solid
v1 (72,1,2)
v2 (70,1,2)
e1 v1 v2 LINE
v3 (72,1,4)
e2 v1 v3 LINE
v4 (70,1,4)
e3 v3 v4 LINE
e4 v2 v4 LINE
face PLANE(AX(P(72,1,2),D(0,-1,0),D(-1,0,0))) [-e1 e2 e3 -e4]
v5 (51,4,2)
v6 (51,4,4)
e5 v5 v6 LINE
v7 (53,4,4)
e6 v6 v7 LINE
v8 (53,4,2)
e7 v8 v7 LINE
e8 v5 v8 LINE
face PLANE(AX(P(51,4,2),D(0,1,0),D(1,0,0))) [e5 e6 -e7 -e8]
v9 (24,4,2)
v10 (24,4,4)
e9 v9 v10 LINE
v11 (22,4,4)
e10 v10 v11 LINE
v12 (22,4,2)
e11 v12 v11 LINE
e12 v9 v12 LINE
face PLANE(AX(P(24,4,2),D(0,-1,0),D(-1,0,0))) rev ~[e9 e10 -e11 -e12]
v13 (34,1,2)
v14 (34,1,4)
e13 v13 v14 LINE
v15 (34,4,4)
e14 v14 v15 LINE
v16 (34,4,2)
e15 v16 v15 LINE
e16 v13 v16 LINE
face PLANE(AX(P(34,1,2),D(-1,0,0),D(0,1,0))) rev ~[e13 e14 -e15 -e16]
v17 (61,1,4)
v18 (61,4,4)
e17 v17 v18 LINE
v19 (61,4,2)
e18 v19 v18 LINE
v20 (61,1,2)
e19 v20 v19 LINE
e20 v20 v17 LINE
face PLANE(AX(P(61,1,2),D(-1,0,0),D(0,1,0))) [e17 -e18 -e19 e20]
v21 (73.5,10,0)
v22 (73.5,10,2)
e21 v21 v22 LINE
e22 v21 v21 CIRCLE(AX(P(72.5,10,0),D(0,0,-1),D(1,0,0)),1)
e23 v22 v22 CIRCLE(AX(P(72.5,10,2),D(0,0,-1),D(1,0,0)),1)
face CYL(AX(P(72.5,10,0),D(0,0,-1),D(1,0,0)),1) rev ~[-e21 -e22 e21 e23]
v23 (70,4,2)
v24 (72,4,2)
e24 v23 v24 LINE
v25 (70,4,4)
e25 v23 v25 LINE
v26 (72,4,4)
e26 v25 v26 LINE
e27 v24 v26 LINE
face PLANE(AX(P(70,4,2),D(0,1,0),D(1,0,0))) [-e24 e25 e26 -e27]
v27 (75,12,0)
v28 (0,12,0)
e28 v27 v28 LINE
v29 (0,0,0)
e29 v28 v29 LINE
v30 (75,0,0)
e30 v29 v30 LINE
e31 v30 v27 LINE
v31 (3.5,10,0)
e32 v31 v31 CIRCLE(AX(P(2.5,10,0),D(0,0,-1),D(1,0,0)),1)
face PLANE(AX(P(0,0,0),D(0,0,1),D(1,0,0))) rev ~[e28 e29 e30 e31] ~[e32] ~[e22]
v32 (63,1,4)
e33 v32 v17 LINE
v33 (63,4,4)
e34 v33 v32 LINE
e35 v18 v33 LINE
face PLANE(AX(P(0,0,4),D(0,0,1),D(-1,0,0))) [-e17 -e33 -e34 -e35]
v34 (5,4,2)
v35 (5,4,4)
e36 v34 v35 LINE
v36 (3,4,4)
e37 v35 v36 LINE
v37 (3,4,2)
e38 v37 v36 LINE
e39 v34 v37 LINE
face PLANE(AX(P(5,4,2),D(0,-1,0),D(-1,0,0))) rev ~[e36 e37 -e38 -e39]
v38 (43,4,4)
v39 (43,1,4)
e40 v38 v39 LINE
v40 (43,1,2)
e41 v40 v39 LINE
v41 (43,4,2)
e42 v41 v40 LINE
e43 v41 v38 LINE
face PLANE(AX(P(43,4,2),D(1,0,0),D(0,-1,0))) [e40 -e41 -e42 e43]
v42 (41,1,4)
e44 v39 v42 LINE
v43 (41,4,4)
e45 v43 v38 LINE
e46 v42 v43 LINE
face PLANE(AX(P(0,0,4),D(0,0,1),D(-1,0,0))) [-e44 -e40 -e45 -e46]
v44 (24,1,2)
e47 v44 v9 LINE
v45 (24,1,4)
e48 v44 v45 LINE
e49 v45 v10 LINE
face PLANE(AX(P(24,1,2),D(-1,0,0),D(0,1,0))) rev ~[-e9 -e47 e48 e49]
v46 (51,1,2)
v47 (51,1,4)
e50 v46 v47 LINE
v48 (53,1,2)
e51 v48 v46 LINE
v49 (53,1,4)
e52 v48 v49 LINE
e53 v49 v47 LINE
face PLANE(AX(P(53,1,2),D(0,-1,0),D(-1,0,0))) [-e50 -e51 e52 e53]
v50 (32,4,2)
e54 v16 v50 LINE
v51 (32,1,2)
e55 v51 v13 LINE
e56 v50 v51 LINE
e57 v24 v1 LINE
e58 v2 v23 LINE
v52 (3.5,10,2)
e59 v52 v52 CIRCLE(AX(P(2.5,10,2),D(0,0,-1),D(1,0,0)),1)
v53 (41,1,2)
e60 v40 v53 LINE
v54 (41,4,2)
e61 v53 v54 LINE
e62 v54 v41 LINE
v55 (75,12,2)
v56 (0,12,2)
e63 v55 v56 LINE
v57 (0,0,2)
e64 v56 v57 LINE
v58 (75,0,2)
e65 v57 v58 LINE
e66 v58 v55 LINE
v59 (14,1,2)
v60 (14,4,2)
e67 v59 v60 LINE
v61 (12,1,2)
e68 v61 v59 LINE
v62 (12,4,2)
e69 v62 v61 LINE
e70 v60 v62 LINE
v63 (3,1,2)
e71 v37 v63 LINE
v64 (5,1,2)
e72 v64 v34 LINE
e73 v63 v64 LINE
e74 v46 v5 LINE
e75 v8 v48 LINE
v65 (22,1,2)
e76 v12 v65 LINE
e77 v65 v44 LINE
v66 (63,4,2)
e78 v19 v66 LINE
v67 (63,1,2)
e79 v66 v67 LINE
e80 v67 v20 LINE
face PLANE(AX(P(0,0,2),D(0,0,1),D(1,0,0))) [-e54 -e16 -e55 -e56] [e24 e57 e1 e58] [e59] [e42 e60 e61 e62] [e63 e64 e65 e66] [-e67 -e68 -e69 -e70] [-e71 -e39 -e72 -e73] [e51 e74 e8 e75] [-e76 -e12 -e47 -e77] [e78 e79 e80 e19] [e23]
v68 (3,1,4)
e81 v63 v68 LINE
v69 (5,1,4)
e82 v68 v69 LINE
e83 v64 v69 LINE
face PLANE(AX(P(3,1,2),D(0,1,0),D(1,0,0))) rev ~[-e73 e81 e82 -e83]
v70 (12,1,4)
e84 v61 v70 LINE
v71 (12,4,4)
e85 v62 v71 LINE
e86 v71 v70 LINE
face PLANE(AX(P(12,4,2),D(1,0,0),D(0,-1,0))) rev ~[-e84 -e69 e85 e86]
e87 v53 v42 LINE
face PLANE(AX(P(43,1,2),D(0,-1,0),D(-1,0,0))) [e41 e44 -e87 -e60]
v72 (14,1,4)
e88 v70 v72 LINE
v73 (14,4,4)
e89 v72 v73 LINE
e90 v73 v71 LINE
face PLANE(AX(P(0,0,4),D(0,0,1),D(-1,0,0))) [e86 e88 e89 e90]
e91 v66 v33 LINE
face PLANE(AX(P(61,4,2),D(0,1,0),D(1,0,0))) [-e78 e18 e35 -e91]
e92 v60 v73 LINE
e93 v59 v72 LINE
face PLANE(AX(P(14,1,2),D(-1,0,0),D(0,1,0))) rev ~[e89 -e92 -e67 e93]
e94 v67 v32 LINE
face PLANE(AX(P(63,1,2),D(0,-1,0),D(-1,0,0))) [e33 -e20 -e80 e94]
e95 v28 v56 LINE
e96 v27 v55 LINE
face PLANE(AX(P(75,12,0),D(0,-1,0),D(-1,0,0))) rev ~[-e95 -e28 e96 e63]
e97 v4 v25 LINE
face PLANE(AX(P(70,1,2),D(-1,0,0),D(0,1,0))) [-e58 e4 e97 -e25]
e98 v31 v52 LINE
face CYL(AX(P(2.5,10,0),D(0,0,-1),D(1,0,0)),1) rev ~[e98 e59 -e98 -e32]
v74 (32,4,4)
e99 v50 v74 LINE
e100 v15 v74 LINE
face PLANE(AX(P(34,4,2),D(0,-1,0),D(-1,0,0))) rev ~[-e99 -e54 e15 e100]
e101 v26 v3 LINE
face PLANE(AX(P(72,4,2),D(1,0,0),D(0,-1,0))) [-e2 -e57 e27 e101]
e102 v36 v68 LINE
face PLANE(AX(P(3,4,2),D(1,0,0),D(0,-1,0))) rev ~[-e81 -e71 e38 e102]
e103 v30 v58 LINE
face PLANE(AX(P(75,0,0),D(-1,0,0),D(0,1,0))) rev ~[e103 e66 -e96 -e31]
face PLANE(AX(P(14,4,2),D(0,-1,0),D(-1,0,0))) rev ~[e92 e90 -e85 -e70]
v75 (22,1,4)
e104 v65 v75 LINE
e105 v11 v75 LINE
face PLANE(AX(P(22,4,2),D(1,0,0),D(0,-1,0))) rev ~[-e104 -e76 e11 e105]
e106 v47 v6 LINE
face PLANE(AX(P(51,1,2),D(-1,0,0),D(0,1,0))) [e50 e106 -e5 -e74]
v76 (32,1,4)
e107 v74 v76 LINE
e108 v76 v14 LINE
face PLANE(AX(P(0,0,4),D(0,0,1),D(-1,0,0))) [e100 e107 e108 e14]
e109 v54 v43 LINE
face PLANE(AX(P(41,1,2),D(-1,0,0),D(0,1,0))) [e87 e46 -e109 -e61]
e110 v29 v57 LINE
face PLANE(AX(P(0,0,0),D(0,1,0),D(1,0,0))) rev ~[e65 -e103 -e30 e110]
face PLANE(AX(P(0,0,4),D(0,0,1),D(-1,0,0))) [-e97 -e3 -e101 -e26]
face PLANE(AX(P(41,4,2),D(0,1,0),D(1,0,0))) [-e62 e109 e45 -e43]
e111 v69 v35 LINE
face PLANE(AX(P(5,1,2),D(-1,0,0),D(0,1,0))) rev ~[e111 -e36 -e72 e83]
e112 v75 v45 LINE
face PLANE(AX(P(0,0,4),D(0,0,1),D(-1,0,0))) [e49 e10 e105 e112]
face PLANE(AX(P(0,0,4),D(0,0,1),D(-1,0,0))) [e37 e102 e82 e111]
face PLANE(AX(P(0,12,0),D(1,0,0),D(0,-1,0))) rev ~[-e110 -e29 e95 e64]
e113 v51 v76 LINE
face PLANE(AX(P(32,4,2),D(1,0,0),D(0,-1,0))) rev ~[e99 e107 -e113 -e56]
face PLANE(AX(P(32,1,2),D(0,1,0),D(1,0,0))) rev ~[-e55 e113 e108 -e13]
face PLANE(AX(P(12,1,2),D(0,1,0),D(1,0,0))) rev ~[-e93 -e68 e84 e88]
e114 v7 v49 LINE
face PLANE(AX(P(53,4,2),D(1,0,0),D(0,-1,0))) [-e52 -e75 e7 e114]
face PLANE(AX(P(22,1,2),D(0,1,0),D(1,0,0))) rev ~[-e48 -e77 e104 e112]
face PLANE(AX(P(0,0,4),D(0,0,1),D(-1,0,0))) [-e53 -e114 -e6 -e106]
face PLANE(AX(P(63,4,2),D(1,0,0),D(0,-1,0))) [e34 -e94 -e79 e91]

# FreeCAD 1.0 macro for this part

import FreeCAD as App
import Part
import Sketcher
from FreeCAD import Vector


def add_polygon(sketch, points):
    """Adds a closed chain of lines whose ends are joined by coincident constraints."""
    first, n = sketch.GeometryCount, len(points)
    for a, b in zip(points, points[1:] + points[:1]):
        sketch.addGeometry(Part.LineSegment(App.Vector(*a, 0), App.Vector(*b, 0)), False)
    for i in range(n):
        sketch.addConstraint(Sketcher.Constraint("Coincident", first + i, 2, first + (i + 1) % n, 1))

doc = App.newDocument("Part")
body = doc.addObject("PartDesign::Body", "Body")

# Sketch on XY plane
sketch1 = body.newObject("Sketcher::SketchObject", "Sketch")
sketch1.AttachmentSupport = (doc.getObject("XY_Plane"), [""])
sketch1.MapMode = "FlatFace"
add_polygon(sketch1, [(0, 12), (0, 0), (75, 0), (75, 12)])  # lines 0-3
sketch1.addConstraint([
    Sketcher.Constraint("Vertical", 0),
    Sketcher.Constraint("Horizontal", 1),
    Sketcher.Constraint("Vertical", 2),
    Sketcher.Constraint("Horizontal", 3),
    Sketcher.Constraint("Coincident", 0, 2, -1, 1),
    Sketcher.Constraint("DistanceX", 1, 1, 1, 2, 75.0),
    Sketcher.Constraint("DistanceY", 0, 2, 0, 1, 12.0),
])
pad1 = body.newObject("PartDesign::Pad", "Pad")
pad1.Profile = sketch1
pad1.Length = 2

# Sketch on XY plane
sketch2 = body.newObject("Sketcher::SketchObject", "Sketch001")
sketch2.AttachmentSupport = (doc.getObject("XY_Plane"), [""])
sketch2.MapMode = "FlatFace"
sketch2.AttachmentOffset = App.Placement(Vector(0, 0, 2), App.Rotation())
add_polygon(sketch2, [(3, 4), (3, 1), (5, 1), (5, 4)])  # lines 0-3
add_polygon(sketch2, [(70, 1), (72, 1), (72, 4), (70, 4)])  # lines 4-7
add_polygon(sketch2, [(12, 4), (12, 1), (14, 1), (14, 4)])  # lines 8-11
add_polygon(sketch2, [(61, 1), (63, 1), (63, 4), (61, 4)])  # lines 12-15
add_polygon(sketch2, [(22, 4), (22, 1), (24, 1), (24, 4)])  # lines 16-19
add_polygon(sketch2, [(51, 1), (53, 1), (53, 4), (51, 4)])  # lines 20-23
add_polygon(sketch2, [(32, 4), (32, 1), (34, 1), (34, 4)])  # lines 24-27
add_polygon(sketch2, [(41, 1), (43, 1), (43, 4), (41, 4)])  # lines 28-31
sketch2.addConstraint([
    Sketcher.Constraint("Vertical", 0),
    Sketcher.Constraint("Horizontal", 1),
    Sketcher.Constraint("Vertical", 2),
    Sketcher.Constraint("Horizontal", 3),
    Sketcher.Constraint("Horizontal", 4),
    Sketcher.Constraint("Vertical", 5),
    Sketcher.Constraint("Horizontal", 6),
    Sketcher.Constraint("Vertical", 7),
    Sketcher.Constraint("Vertical", 8),
    Sketcher.Constraint("Horizontal", 9),
    Sketcher.Constraint("Vertical", 10),
    Sketcher.Constraint("Horizontal", 11),
    Sketcher.Constraint("Horizontal", 12),
    Sketcher.Constraint("Vertical", 13),
    Sketcher.Constraint("Horizontal", 14),
    Sketcher.Constraint("Vertical", 15),
    Sketcher.Constraint("Vertical", 16),
    Sketcher.Constraint("Horizontal", 17),
    Sketcher.Constraint("Vertical", 18),
    Sketcher.Constraint("Horizontal", 19),
    Sketcher.Constraint("Horizontal", 20),
    Sketcher.Constraint("Vertical", 21),
    Sketcher.Constraint("Horizontal", 22),
    Sketcher.Constraint("Vertical", 23),
    Sketcher.Constraint("Vertical", 24),
    Sketcher.Constraint("Horizontal", 25),
    Sketcher.Constraint("Vertical", 26),
    Sketcher.Constraint("Horizontal", 27),
    Sketcher.Constraint("Horizontal", 28),
    Sketcher.Constraint("Vertical", 29),
    Sketcher.Constraint("Horizontal", 30),
    Sketcher.Constraint("Vertical", 31),
    Sketcher.Constraint("Horizontal", 1, 2, 4, 2),
    Sketcher.Constraint("Horizontal", 3, 2, 5, 2),
    Sketcher.Constraint("Horizontal", 7, 2, 8, 2),
    Sketcher.Constraint("Horizontal", 6, 2, 10, 2),
    Sketcher.Constraint("Horizontal", 9, 2, 12, 2),
    Sketcher.Constraint("Horizontal", 11, 2, 13, 2),
    Sketcher.Constraint("Horizontal", 15, 2, 16, 2),
    Sketcher.Constraint("Horizontal", 14, 2, 18, 2),
    Sketcher.Constraint("Horizontal", 17, 2, 20, 2),
    Sketcher.Constraint("Horizontal", 19, 2, 21, 2),
    Sketcher.Constraint("Horizontal", 23, 2, 24, 2),
    Sketcher.Constraint("Horizontal", 22, 2, 26, 2),
    Sketcher.Constraint("Horizontal", 25, 2, 28, 2),
    Sketcher.Constraint("Horizontal", 27, 2, 29, 2),
    Sketcher.Constraint("Equal", 3, 4),
    Sketcher.Constraint("Equal", 6, 9),
    Sketcher.Constraint("Equal", 11, 12),
    Sketcher.Constraint("Equal", 14, 17),
    Sketcher.Constraint("Equal", 19, 20),
    Sketcher.Constraint("Equal", 22, 25),
    Sketcher.Constraint("Equal", 27, 28),
    Sketcher.Constraint("DistanceX", 1, 1, 1, 2, 2.0),
    Sketcher.Constraint("DistanceY", 0, 2, 0, 1, 3.0),
    Sketcher.Constraint("DistanceX", -1, 1, 0, 2, 3.0),
    Sketcher.Constraint("DistanceY", -1, 1, 0, 2, 1.0),
    Sketcher.Constraint("DistanceX", -1, 1, 4, 2, 72.0),
    Sketcher.Constraint("DistanceX", -1, 1, 8, 2, 12.0),
    Sketcher.Constraint("DistanceX", -1, 1, 12, 2, 63.0),
    Sketcher.Constraint("DistanceX", -1, 1, 16, 2, 22.0),
    Sketcher.Constraint("DistanceX", -1, 1, 20, 2, 53.0),
    Sketcher.Constraint("DistanceX", -1, 1, 24, 2, 32.0),
    Sketcher.Constraint("DistanceX", -1, 1, 28, 2, 43.0),
])
pad2 = body.newObject("PartDesign::Pad", "Pad001")
pad2.Profile = sketch2
pad2.Length = 2

# Sketch on XY plane
sketch3 = body.newObject("Sketcher::SketchObject", "Sketch002")
sketch3.AttachmentSupport = (doc.getObject("XY_Plane"), [""])
sketch3.MapMode = "FlatFace"
sketch3.addGeometry([
    Part.Circle(Vector(2.5, 10, 0), Vector(0, 0, 1), 1),
    Part.Circle(Vector(72.5, 10, 0), Vector(0, 0, 1), 1),
], False)
sketch3.addConstraint([
    Sketcher.Constraint("Equal", 0, 1),
    Sketcher.Constraint("Horizontal", 0, 3, 1, 3),
    Sketcher.Constraint("Diameter", 0, 2.0),
    Sketcher.Constraint("DistanceY", -1, 1, 0, 3, 10.0),
    Sketcher.Constraint("DistanceX", 0, 3, 1, 3, 70.0),
    Sketcher.Constraint("DistanceX", -1, 1, 0, 3, 2.5),
])
pocket1 = body.newObject("PartDesign::Pocket", "Pocket")
pocket1.Profile = sketch3
pocket1.Length = 4
pocket1.Reversed = True

doc.recompute()
